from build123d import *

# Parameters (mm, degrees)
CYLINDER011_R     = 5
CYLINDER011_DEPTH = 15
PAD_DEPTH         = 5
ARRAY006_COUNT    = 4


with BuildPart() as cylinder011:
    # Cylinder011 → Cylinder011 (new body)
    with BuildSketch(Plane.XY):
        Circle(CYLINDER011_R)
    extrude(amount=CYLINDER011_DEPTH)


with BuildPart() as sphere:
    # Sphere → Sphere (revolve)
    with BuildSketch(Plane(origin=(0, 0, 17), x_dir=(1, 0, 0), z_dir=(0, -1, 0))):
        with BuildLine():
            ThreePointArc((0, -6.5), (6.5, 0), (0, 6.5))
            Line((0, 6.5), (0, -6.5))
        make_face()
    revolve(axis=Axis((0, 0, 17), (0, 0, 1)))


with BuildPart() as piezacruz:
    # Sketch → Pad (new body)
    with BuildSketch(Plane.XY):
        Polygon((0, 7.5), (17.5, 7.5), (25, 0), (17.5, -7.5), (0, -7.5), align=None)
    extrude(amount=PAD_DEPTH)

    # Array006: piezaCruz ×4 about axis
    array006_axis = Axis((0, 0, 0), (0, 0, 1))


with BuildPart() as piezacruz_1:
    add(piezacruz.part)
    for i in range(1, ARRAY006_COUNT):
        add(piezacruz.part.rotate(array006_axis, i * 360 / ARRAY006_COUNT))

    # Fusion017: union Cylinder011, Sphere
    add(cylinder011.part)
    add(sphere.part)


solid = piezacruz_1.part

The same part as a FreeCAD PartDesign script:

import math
import FreeCAD as App
import Part
import Sketcher
from FreeCAD import Vector


def add_polygon(sketch, points):
    """Adds a closed chain of lines whose ends are joined by coincident constraints."""
    first, n = sketch.GeometryCount, len(points)
    for a, b in zip(points, points[1:] + points[:1]):
        sketch.addGeometry(Part.LineSegment(App.Vector(*a, 0), App.Vector(*b, 0)), False)
    for i in range(n):
        sketch.addConstraint(Sketcher.Constraint("Coincident", first + i, 2, first + (i + 1) % n, 1))

doc = App.newDocument("Part")
body = doc.addObject("PartDesign::Body", "Body")

# Sketch on XY plane
sketch1 = doc.addObject("Sketcher::SketchObject", "Sketch")
body.addObject(sketch1)
sketch1.AttachmentSupport = (doc.XY_Plane, [""])
sketch1.MapMode = "FlatFace"
sketch1.addGeometry(Part.Circle(Vector(0, 0, 0), Vector(0, 0, 1), 5), False)
sketch1.addConstraint([
    Sketcher.Constraint("Coincident", 0, 3, -1, 1),
    Sketcher.Constraint("Diameter", 0, 10.0),
])
pad1 = doc.addObject("PartDesign::Pad", "Pad")
body.addObject(pad1)
pad1.Profile = sketch1
pad1.Length = 15
body2 = doc.addObject("PartDesign::Body", "Body001")

# Sketch on XZ plane
sketch2 = doc.addObject("Sketcher::SketchObject", "Sketch001")
body2.addObject(sketch2)
sketch2.AttachmentSupport = (doc.getObject("XZ_Plane001"), [""])
sketch2.MapMode = "FlatFace"
sketch2.addGeometry([
    Part.ArcOfCircle(Part.Circle(Vector(0, 17, 0), Vector(0, 0, 1), 6), math.radians(-90), math.radians(90)),
    Part.LineSegment(Vector(0, 24, 0), Vector(0, 10, 0)),
], False)
sketch2.addConstraint([
    Sketcher.Constraint("Coincident", 0, 1, 1, 2),
    Sketcher.Constraint("Coincident", 1, 1, 0, 2),
    Sketcher.Constraint("Vertical", 1),
    Sketcher.Constraint("PointOnObject", 0, 3, -2),
    Sketcher.Constraint("PointOnObject", 0, 1, -2),
    Sketcher.Constraint("Radius", 0, 6.5),
    Sketcher.Constraint("DistanceY", -1, 1, 0, 3, 17.0),
])
revolution = doc.addObject("PartDesign::Revolution", "Revolution")
body2.addObject(revolution)
revolution.Profile = sketch2
revolution.ReferenceAxis = (sketch2, ["V_Axis"])
revolution.Angle = 360
body3 = doc.addObject("PartDesign::Body", "Body002")

# Sketch on XY plane
sketch3 = doc.addObject("Sketcher::SketchObject", "Sketch002")
body3.addObject(sketch3)
sketch3.AttachmentSupport = (doc.getObject("XY_Plane002"), [""])
sketch3.MapMode = "FlatFace"
add_polygon(sketch3, [(18, 8), (0, 8), (0, -8), (18, -8), (25, 0)])  # lines 0-4
sketch3.addConstraint([
    Sketcher.Constraint("Horizontal", 0),
    Sketcher.Constraint("Vertical", 1),
    Sketcher.Constraint("Horizontal", 2),
    Sketcher.Constraint("Symmetric", 0, 2, 1, 2, -1, 1),
    Sketcher.Constraint("PointOnObject", 3, 2, -1),
    Sketcher.Constraint("Perpendicular", 3, 4),
    Sketcher.Constraint("Vertical", 2, 2, 4, 2),
    Sketcher.Constraint("DistanceY", 1, 2, 1, 1, 15.0),
    Sketcher.Constraint("DistanceX", 0, 2, 0, 1, 17.5),
])
pad2 = doc.addObject("PartDesign::Pad", "Pad001")
body3.addObject(pad2)
pad2.Profile = sketch3
pad2.Length = 5
body4 = doc.addObject("PartDesign::Body", "Body003")
doc.recompute()

body4.BaseFeature = body3
doc.recompute()

body5 = doc.addObject("PartDesign::Body", "Body004")
body5.BaseFeature = body3
body5.Placement = App.Placement(Vector(0, 0, 0), App.Rotation(Vector(0, 0, 1), 90))
boolean = doc.addObject("PartDesign::Boolean", "Boolean")
body4.addObject(boolean)
boolean.Type = "Fuse"
boolean.addObjects([body5])
doc.recompute()

body6 = doc.addObject("PartDesign::Body", "Body005")
body6.BaseFeature = body3
body6.Placement = App.Placement(Vector(0, 0, 0), App.Rotation(Vector(0, 0, 1), 180))
boolean2 = doc.addObject("PartDesign::Boolean", "Boolean001")
body4.addObject(boolean2)
boolean2.Type = "Fuse"
boolean2.addObjects([body6])
doc.recompute()

body3.Placement = App.Placement(Vector(0, 0, 0), App.Rotation(Vector(0, 0, 1), 270))
boolean3 = doc.addObject("PartDesign::Boolean", "Boolean002")
body4.addObject(boolean3)
boolean3.Type = "Fuse"
boolean3.addObjects([body3])
doc.recompute()

boolean4 = doc.addObject("PartDesign::Boolean", "Boolean003")
body4.addObject(boolean4)
boolean4.Type = "Fuse"
boolean4.addObjects([body])
doc.recompute()

boolean5 = doc.addObject("PartDesign::Boolean", "Boolean004")
body4.addObject(boolean5)
boolean5.Type = "Fuse"
boolean5.addObjects([body2])

doc.recompute()
